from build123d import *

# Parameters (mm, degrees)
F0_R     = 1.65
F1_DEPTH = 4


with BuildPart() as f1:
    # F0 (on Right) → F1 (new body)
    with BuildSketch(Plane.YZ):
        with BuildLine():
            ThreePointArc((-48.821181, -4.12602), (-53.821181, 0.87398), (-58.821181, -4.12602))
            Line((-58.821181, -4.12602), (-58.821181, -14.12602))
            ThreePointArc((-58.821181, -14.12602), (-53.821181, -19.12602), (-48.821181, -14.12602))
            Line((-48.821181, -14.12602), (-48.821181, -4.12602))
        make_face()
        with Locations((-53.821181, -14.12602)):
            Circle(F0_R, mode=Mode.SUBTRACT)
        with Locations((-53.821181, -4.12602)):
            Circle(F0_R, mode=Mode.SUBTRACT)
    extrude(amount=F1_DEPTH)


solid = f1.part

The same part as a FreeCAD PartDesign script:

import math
import FreeCAD as App
import Part
import Sketcher

doc = App.newDocument("Part")
body = doc.addObject("PartDesign::Body", "Body")

# Sketch on YZ plane
sketch1 = doc.addObject("Sketcher::SketchObject", "Sketch")
body.addObject(sketch1)
sketch1.AttachmentSupport = (doc.YZ_Plane, [""])
sketch1.MapMode = "FlatFace"
sketch1.addGeometry(Part.ArcOfCircle(Part.Circle(App.Vector(-53.8, -4.1, 0), App.Vector(0, 0, 1), 5), math.radians(0), math.radians(180)), False)
sketch1.addGeometry(Part.LineSegment(App.Vector(-58.8, -4.1, 0), App.Vector(-58.8, -14.1, 0)), False)
sketch1.addGeometry(Part.ArcOfCircle(Part.Circle(App.Vector(-53.8, -14.1, 0), App.Vector(0, 0, 1), 5), math.radians(180), math.radians(360)), False)
sketch1.addGeometry(Part.LineSegment(App.Vector(-48.8, -14.1, 0), App.Vector(-48.8, -4.1, 0)), False)
sketch1.addGeometry(Part.Circle(App.Vector(-53.8, -14.1, 0), App.Vector(0, 0, 1), 1.6), False)
sketch1.addGeometry(Part.Circle(App.Vector(-53.8, -4.1, 0), App.Vector(0, 0, 1), 1.6), False)
sketch1.addConstraint(Sketcher.Constraint("Tangent", 0, 2, 1, 1))
sketch1.addConstraint(Sketcher.Constraint("Tangent", 1, 2, 2, 1))
sketch1.addConstraint(Sketcher.Constraint("Tangent", 2, 2, 3, 1))
sketch1.addConstraint(Sketcher.Constraint("Tangent", 3, 2, 0, 1))
sketch1.addConstraint(Sketcher.Constraint("Vertical", 1))
sketch1.addConstraint(Sketcher.Constraint("Vertical", 3))
sketch1.addConstraint(Sketcher.Constraint("Coincident", 4, 3, 2, 3))
sketch1.addConstraint(Sketcher.Constraint("Coincident", 5, 3, 0, 3))
sketch1.addConstraint(Sketcher.Constraint("Equal", 4, 5))
sketch1.addConstraint(Sketcher.Constraint("Radius", 0, 5.0))
sketch1.addConstraint(Sketcher.Constraint("Diameter", 4, 3.3))
sketch1.addConstraint(Sketcher.Constraint("DistanceY", 1, 2, 1, 1, 10.0))
sketch1.addConstraint(Sketcher.Constraint("DistanceX", 0, 3, -1, 1, 53.821181))
sketch1.addConstraint(Sketcher.Constraint("DistanceY", 0, 3, -1, 1, 4.12602))
pad1 = doc.addObject("PartDesign::Pad", "Pad")
body.addObject(pad1)
pad1.Profile = sketch1
pad1.Length = 4

doc.recompute()
